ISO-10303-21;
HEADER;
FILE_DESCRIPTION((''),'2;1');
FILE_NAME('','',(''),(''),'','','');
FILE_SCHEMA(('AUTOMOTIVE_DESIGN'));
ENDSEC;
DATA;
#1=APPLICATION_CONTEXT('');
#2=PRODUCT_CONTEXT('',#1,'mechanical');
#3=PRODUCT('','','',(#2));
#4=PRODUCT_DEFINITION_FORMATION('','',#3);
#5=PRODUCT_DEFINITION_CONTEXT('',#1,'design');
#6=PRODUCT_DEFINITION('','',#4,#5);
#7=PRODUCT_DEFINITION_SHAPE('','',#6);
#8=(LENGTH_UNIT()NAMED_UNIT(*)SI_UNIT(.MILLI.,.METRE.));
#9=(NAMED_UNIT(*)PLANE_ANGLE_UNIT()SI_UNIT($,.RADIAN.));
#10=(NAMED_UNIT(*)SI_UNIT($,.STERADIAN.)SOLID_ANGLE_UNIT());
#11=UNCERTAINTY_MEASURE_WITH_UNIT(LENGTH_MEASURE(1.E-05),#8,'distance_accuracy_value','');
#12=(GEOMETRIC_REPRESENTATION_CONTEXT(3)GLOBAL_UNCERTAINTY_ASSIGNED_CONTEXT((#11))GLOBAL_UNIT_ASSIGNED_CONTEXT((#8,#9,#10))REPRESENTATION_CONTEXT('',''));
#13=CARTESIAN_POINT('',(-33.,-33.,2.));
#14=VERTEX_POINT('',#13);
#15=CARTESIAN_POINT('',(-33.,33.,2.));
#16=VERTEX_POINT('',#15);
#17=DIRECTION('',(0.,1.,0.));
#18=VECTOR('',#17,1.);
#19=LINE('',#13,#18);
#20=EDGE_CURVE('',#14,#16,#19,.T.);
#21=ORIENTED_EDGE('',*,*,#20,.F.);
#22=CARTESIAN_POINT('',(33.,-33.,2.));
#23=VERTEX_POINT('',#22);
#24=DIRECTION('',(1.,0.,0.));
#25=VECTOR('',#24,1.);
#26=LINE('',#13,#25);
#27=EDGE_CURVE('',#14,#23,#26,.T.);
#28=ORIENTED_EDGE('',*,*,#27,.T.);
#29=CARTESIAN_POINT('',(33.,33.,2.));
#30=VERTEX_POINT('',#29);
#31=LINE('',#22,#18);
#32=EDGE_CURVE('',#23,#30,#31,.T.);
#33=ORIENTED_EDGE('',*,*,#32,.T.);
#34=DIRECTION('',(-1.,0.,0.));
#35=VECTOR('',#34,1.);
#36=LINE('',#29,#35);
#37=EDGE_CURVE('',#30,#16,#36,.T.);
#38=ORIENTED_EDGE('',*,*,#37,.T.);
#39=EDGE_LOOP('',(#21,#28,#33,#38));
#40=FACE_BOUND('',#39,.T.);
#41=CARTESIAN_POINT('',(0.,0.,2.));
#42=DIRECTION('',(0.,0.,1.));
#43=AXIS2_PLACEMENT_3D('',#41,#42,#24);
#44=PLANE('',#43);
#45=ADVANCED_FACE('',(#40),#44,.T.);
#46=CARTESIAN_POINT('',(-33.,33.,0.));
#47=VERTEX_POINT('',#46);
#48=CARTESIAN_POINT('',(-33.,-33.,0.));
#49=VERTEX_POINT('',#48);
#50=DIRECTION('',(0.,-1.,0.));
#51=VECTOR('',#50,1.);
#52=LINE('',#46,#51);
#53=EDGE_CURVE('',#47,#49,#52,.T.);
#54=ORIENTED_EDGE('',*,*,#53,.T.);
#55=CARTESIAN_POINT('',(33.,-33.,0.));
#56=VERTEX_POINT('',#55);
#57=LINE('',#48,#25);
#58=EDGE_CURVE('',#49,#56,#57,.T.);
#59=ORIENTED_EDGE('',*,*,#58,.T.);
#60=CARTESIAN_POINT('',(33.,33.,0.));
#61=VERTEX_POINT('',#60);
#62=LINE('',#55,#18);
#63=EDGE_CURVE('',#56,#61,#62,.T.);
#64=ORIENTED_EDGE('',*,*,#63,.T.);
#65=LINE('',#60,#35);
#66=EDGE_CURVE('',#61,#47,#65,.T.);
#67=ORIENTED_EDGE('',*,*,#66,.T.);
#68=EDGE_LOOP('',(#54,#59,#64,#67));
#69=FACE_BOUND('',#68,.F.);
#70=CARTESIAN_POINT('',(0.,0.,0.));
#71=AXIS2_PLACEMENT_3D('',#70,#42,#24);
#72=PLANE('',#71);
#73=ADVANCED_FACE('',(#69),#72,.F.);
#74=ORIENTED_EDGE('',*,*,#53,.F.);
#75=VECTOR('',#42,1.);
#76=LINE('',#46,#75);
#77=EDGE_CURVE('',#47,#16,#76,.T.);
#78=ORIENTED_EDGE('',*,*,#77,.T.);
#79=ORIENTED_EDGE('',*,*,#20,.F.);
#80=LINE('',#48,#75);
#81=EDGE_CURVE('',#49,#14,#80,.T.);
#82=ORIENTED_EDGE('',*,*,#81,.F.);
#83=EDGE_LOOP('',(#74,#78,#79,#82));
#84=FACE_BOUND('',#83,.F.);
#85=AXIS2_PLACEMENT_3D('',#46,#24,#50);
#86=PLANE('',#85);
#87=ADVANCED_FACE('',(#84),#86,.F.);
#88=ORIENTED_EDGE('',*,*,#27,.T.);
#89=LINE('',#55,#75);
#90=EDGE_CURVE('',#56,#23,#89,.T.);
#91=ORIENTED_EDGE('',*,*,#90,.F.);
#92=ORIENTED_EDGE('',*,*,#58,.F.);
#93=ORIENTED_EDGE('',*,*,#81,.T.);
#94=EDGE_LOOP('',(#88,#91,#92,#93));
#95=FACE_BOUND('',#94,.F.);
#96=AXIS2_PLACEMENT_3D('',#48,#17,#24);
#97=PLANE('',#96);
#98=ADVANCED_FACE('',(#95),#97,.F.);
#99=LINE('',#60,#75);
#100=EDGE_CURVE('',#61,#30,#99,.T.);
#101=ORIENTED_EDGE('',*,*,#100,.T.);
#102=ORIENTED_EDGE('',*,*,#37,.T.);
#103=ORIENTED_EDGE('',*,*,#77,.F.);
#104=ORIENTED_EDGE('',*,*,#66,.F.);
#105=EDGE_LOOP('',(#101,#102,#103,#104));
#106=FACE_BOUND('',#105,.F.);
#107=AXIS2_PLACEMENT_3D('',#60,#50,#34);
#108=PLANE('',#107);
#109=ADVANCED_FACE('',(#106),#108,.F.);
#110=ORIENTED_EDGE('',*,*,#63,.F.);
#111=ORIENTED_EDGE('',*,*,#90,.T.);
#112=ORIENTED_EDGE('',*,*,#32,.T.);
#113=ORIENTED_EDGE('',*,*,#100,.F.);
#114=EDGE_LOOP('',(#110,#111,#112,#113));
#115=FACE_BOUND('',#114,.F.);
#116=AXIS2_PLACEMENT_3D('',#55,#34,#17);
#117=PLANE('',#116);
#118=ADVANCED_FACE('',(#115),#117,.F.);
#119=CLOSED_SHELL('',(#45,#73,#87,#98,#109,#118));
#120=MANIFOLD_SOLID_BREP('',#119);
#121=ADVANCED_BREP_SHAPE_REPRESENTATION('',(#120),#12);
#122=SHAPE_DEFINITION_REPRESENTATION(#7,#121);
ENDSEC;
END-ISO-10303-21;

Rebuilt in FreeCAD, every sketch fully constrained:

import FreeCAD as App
import Part
import Sketcher
from FreeCAD import Vector

doc = App.newDocument("Part")
body = doc.addObject("PartDesign::Body", "Body")

# Sketch on XY plane
sketch1 = body.newObject("Sketcher::SketchObject", "Sketch")
sketch1.AttachmentSupport = (doc.getObject("XY_Plane"), [""])
sketch1.MapMode = "FlatFace"
sketch1.addGeometry(Part.LineSegment(Vector(-33, 33, 0), Vector(-33, -33, 0)), False)
sketch1.addGeometry(Part.LineSegment(Vector(-33, -33, 0), Vector(33, -33, 0)), False)
sketch1.addGeometry(Part.LineSegment(Vector(33, -33, 0), Vector(33, 33, 0)), False)
sketch1.addGeometry(Part.LineSegment(Vector(33, 33, 0), Vector(-33, 33, 0)), False)
sketch1.addConstraint(Sketcher.Constraint("Coincident", 0, 2, 1, 1))
sketch1.addConstraint(Sketcher.Constraint("Coincident", 1, 2, 2, 1))
sketch1.addConstraint(Sketcher.Constraint("Coincident", 2, 2, 3, 1))
sketch1.addConstraint(Sketcher.Constraint("Coincident", 3, 2, 0, 1))
sketch1.addConstraint(Sketcher.Constraint("Vertical", 0))
sketch1.addConstraint(Sketcher.Constraint("Horizontal", 1))
sketch1.addConstraint(Sketcher.Constraint("Vertical", 2))
sketch1.addConstraint(Sketcher.Constraint("Horizontal", 3))
sketch1.addConstraint(Sketcher.Constraint("Symmetric", 0, 2, 2, 2, -1, 1))
sketch1.addConstraint(Sketcher.Constraint("Equal", 3, 0))
sketch1.addConstraint(Sketcher.Constraint("DistanceX", 1, 1, 1, 2, 66.0))
pad1 = body.newObject("PartDesign::Pad", "Pad")
pad1.Profile = sketch1
pad1.Length = 2

doc.recompute()
